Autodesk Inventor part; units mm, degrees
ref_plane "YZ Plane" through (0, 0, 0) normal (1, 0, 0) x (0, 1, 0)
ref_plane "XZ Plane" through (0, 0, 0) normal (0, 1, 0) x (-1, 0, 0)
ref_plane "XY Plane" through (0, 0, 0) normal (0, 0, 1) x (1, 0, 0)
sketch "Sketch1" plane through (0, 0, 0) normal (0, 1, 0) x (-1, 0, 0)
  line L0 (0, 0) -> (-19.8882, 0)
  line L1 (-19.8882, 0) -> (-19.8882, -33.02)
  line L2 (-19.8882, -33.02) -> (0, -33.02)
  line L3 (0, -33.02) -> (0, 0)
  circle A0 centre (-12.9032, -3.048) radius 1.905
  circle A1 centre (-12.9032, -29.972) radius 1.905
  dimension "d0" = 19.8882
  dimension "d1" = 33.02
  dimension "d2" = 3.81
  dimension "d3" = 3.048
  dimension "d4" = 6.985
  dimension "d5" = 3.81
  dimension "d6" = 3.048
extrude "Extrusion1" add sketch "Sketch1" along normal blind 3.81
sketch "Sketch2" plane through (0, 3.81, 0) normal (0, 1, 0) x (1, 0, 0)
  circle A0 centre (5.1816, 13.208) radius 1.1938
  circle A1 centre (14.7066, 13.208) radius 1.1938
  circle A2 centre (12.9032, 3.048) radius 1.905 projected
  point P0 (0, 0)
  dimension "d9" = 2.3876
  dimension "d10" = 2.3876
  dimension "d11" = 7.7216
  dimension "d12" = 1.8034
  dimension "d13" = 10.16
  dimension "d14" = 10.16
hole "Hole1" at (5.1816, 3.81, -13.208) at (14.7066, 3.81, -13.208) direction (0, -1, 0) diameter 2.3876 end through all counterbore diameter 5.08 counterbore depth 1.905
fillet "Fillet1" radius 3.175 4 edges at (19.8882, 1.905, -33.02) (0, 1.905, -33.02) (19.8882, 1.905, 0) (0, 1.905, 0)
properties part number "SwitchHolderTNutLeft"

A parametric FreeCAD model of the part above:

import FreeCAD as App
import Part
import Sketcher

V = App.Vector
Q = App.Units.Quantity


def edges_at(feature, points):
    """Names of the edges that pass closest to the given points."""
    edges = feature.Shape.Edges
    near = lambda p: min(range(len(edges)), key=lambda i: edges[i].distToShape(Part.Vertex(*p))[0])
    return sorted({f"Edge{near(p) + 1}" for p in points})

doc = App.newDocument("Part")
body = doc.addObject("PartDesign::Body", "Body")

sketch1 = body.newObject("Sketcher::SketchObject", "Sketch")
sketch1.AttachmentSupport = (doc.getObject("XZ_Plane"), [""])
sketch1.MapMode = "FlatFace"
sketch1.addGeometry(Part.LineSegment(V(0, -33, 0), V(0, 0, 0)), False)
sketch1.addGeometry(Part.LineSegment(V(0, 0, 0), V(19.9, 0, 0)), False)
sketch1.addGeometry(Part.LineSegment(V(19.9, 0, 0), V(19.9, -33, 0)), False)
sketch1.addGeometry(Part.LineSegment(V(19.9, -33, 0), V(0, -33, 0)), False)
sketch1.addGeometry(Part.Circle(V(12.9, -30, 0), V(0, 0, 1), 1.9), False)
sketch1.addGeometry(Part.Circle(V(12.9, -3, 0), V(0, 0, 1), 1.9), False)
sketch1.addConstraint(Sketcher.Constraint("Coincident", 0, 2, 1, 1))
sketch1.addConstraint(Sketcher.Constraint("Coincident", 1, 2, 2, 1))
sketch1.addConstraint(Sketcher.Constraint("Coincident", 2, 2, 3, 1))
sketch1.addConstraint(Sketcher.Constraint("Coincident", 3, 2, 0, 1))
sketch1.addConstraint(Sketcher.Constraint("Vertical", 0))
sketch1.addConstraint(Sketcher.Constraint("Horizontal", 1))
sketch1.addConstraint(Sketcher.Constraint("Vertical", 2))
sketch1.addConstraint(Sketcher.Constraint("Horizontal", 3))
sketch1.addConstraint(Sketcher.Constraint("Coincident", 0, 2, -1, 1))
sketch1.addConstraint(Sketcher.Constraint("Equal", 4, 5))
sketch1.addConstraint(Sketcher.Constraint("Vertical", 4, 3, 5, 3))
sketch1.addConstraint(Sketcher.Constraint("Diameter", 4, Q("0.15 in")))
sketch1.addConstraint(Sketcher.Constraint("DistanceY", 0, 1, 0, 2, Q("1.3 in")))
sketch1.addConstraint(Sketcher.Constraint("DistanceX", 1, 1, 1, 2, Q("0.783 in")))
sketch1.addConstraint(Sketcher.Constraint("DistanceY", 5, 3, -1, 1, Q("0.12 in")))
sketch1.addConstraint(Sketcher.Constraint("DistanceY", 2, 2, 4, 3, Q("0.12 in")))
sketch1.addConstraint(Sketcher.Constraint("DistanceX", 5, 3, 1, 2, Q("0.275 in")))
pad1 = body.newObject("PartDesign::Pad", "Pad")
pad1.Profile = sketch1
pad1.Length = Q("0.15 in")
pad1.Reversed = True

sketch2 = body.newObject("Sketcher::SketchObject", "Sketch001")
sketch2.AttachmentSupport = (doc.getObject("XZ_Plane"), [""])
sketch2.MapMode = "FlatFace"
sketch2.AttachmentOffset = App.Placement(V(0, 0, -0.15 * 25.4), App.Rotation())
sketch2.addGeometry(Part.Circle(V(5.2, -13.2, 0), V(0, 0, 1), 1.2), False)
sketch2.addGeometry(Part.Circle(V(14.7, -13.2, 0), V(0, 0, 1), 1.2), False)
sketch2.addConstraint(Sketcher.Constraint("Equal", 0, 1))
sketch2.addConstraint(Sketcher.Constraint("Horizontal", 0, 3, 1, 3))
sketch2.addConstraint(Sketcher.Constraint("Diameter", 0, Q("0.094 in")))
sketch2.addConstraint(Sketcher.Constraint("DistanceY", 0, 3, -1, 1, Q("0.52 in")))
sketch2.addConstraint(Sketcher.Constraint("DistanceX", -1, 1, 0, 3, Q("0.204 in")))
sketch2.addConstraint(Sketcher.Constraint("DistanceX", -1, 1, 1, 3, Q("0.579 in")))
doc.recompute()
hole = body.newObject("PartDesign::Hole", "Hole")
hole.Profile = sketch2
hole.ThreadType = "None"
hole.Diameter = Q("0.094 in")
hole.DepthType = "ThroughAll"
hole.HoleCutType = "Counterbore"
hole.HoleCutDiameter = Q("0.2 in")
hole.HoleCutDepth = Q("0.075 in")
hole.Reversed = True
doc.recompute()

fillet = body.newObject("PartDesign::Fillet", "Fillet")
fillet.Base = (hole, edges_at(hole, [
    (19.888, 1.905, -33.02),
    (0, 1.905, -33.02),
    (19.888, 1.905, 0),
    (0, 1.905, 0),
]))
fillet.Radius = Q("0.125 in")

doc.recompute()
